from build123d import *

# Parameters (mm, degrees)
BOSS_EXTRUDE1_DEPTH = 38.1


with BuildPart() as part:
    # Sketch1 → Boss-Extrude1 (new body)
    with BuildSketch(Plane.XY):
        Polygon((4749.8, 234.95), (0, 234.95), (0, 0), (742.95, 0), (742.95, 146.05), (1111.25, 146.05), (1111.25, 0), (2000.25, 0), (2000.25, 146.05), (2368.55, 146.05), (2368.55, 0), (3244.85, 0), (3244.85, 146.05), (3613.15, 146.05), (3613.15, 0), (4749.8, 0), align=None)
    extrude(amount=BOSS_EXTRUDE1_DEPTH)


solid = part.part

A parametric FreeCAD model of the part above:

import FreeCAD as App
import Part
import Sketcher

V = App.Vector
Q = App.Units.Quantity

doc = App.newDocument("Part")
body = doc.addObject("PartDesign::Body", "Body")

sketch1 = doc.addObject("Sketcher::SketchObject", "Sketch")
body.addObject(sketch1)
sketch1.AttachmentSupport = (doc.XY_Plane, [""])
sketch1.MapMode = "FlatFace"
sketch1.addGeometry([
    Part.LineSegment(V(4750, 235, 0), V(0, 235, 0)),
    Part.LineSegment(V(0, 235, 0), V(0, 0, 0)),
    Part.LineSegment(V(0, 0, 0), V(743, 0, 0)),
    Part.LineSegment(V(743, 0, 0), V(743, 146, 0)),
    Part.LineSegment(V(743, 146, 0), V(1111, 146, 0)),
    Part.LineSegment(V(1111, 146, 0), V(1111, 0, 0)),
    Part.LineSegment(V(1111, 0, 0), V(2000, 0, 0)),
    Part.LineSegment(V(2000, 0, 0), V(2000, 146, 0)),
    Part.LineSegment(V(2000, 146, 0), V(2369, 146, 0)),
    Part.LineSegment(V(2369, 146, 0), V(2369, 0, 0)),
    Part.LineSegment(V(2369, 0, 0), V(3245, 0, 0)),
    Part.LineSegment(V(3245, 0, 0), V(3245, 146, 0)),
    Part.LineSegment(V(3245, 146, 0), V(3613, 146, 0)),
    Part.LineSegment(V(3613, 146, 0), V(3613, 0, 0)),
    Part.LineSegment(V(3613, 0, 0), V(4750, 0, 0)),
    Part.LineSegment(V(4750, 0, 0), V(4750, 235, 0)),
], False)
sketch1.addConstraint([
    Sketcher.Constraint("Coincident", 0, 2, 1, 1),
    Sketcher.Constraint("Coincident", 1, 2, 2, 1),
    Sketcher.Constraint("Coincident", 2, 2, 3, 1),
    Sketcher.Constraint("Coincident", 3, 2, 4, 1),
    Sketcher.Constraint("Coincident", 4, 2, 5, 1),
    Sketcher.Constraint("Coincident", 5, 2, 6, 1),
    Sketcher.Constraint("Coincident", 6, 2, 7, 1),
    Sketcher.Constraint("Coincident", 7, 2, 8, 1),
    Sketcher.Constraint("Coincident", 8, 2, 9, 1),
    Sketcher.Constraint("Coincident", 9, 2, 10, 1),
    Sketcher.Constraint("Coincident", 10, 2, 11, 1),
    Sketcher.Constraint("Coincident", 11, 2, 12, 1),
    Sketcher.Constraint("Coincident", 12, 2, 13, 1),
    Sketcher.Constraint("Coincident", 13, 2, 14, 1),
    Sketcher.Constraint("Coincident", 14, 2, 15, 1),
    Sketcher.Constraint("Coincident", 15, 2, 0, 1),
    Sketcher.Constraint("Horizontal", 0),
    Sketcher.Constraint("Vertical", 1),
    Sketcher.Constraint("Horizontal", 2),
    Sketcher.Constraint("Vertical", 3),
    Sketcher.Constraint("Horizontal", 4),
    Sketcher.Constraint("Vertical", 5),
    Sketcher.Constraint("Horizontal", 6),
    Sketcher.Constraint("Vertical", 7),
    Sketcher.Constraint("Horizontal", 8),
    Sketcher.Constraint("Vertical", 9),
    Sketcher.Constraint("Horizontal", 10),
    Sketcher.Constraint("Vertical", 11),
    Sketcher.Constraint("Horizontal", 12),
    Sketcher.Constraint("Vertical", 13),
    Sketcher.Constraint("Horizontal", 14),
    Sketcher.Constraint("Vertical", 15),
    Sketcher.Constraint("Coincident", 1, 2, -1, 1),
    Sketcher.Constraint("PointOnObject", 5, 2, -1),
    Sketcher.Constraint("PointOnObject", 9, 2, -1),
    Sketcher.Constraint("PointOnObject", 13, 2, -1),
    Sketcher.Constraint("Horizontal", 4, 2, 7, 2),
    Sketcher.Constraint("Horizontal", 8, 2, 11, 2),
    Sketcher.Constraint("Equal", 4, 8),
    Sketcher.Constraint("Equal", 8, 12),
    Sketcher.Constraint("DistanceX", 0, 2, 0, 1, Q("187 in")),
    Sketcher.Constraint("DistanceX", 6, 1, 6, 2, Q("35 in")),
    Sketcher.Constraint("DistanceX", 4, 1, 4, 2, Q("14.5 in")),
    Sketcher.Constraint("DistanceX", 10, 1, 10, 2, Q("34.5 in")),
    Sketcher.Constraint("DistanceX", 2, 1, 2, 2, Q("29.25 in")),
    Sketcher.Constraint("DistanceY", 1, 2, 1, 1, Q("9.25 in")),
    Sketcher.Constraint("DistanceY", 3, 1, 3, 2, Q("5.75 in")),
])
pad1 = doc.addObject("PartDesign::Pad", "Pad")
body.addObject(pad1)
pad1.Profile = sketch1
pad1.Length = Q("1.5 in")

doc.recompute()
